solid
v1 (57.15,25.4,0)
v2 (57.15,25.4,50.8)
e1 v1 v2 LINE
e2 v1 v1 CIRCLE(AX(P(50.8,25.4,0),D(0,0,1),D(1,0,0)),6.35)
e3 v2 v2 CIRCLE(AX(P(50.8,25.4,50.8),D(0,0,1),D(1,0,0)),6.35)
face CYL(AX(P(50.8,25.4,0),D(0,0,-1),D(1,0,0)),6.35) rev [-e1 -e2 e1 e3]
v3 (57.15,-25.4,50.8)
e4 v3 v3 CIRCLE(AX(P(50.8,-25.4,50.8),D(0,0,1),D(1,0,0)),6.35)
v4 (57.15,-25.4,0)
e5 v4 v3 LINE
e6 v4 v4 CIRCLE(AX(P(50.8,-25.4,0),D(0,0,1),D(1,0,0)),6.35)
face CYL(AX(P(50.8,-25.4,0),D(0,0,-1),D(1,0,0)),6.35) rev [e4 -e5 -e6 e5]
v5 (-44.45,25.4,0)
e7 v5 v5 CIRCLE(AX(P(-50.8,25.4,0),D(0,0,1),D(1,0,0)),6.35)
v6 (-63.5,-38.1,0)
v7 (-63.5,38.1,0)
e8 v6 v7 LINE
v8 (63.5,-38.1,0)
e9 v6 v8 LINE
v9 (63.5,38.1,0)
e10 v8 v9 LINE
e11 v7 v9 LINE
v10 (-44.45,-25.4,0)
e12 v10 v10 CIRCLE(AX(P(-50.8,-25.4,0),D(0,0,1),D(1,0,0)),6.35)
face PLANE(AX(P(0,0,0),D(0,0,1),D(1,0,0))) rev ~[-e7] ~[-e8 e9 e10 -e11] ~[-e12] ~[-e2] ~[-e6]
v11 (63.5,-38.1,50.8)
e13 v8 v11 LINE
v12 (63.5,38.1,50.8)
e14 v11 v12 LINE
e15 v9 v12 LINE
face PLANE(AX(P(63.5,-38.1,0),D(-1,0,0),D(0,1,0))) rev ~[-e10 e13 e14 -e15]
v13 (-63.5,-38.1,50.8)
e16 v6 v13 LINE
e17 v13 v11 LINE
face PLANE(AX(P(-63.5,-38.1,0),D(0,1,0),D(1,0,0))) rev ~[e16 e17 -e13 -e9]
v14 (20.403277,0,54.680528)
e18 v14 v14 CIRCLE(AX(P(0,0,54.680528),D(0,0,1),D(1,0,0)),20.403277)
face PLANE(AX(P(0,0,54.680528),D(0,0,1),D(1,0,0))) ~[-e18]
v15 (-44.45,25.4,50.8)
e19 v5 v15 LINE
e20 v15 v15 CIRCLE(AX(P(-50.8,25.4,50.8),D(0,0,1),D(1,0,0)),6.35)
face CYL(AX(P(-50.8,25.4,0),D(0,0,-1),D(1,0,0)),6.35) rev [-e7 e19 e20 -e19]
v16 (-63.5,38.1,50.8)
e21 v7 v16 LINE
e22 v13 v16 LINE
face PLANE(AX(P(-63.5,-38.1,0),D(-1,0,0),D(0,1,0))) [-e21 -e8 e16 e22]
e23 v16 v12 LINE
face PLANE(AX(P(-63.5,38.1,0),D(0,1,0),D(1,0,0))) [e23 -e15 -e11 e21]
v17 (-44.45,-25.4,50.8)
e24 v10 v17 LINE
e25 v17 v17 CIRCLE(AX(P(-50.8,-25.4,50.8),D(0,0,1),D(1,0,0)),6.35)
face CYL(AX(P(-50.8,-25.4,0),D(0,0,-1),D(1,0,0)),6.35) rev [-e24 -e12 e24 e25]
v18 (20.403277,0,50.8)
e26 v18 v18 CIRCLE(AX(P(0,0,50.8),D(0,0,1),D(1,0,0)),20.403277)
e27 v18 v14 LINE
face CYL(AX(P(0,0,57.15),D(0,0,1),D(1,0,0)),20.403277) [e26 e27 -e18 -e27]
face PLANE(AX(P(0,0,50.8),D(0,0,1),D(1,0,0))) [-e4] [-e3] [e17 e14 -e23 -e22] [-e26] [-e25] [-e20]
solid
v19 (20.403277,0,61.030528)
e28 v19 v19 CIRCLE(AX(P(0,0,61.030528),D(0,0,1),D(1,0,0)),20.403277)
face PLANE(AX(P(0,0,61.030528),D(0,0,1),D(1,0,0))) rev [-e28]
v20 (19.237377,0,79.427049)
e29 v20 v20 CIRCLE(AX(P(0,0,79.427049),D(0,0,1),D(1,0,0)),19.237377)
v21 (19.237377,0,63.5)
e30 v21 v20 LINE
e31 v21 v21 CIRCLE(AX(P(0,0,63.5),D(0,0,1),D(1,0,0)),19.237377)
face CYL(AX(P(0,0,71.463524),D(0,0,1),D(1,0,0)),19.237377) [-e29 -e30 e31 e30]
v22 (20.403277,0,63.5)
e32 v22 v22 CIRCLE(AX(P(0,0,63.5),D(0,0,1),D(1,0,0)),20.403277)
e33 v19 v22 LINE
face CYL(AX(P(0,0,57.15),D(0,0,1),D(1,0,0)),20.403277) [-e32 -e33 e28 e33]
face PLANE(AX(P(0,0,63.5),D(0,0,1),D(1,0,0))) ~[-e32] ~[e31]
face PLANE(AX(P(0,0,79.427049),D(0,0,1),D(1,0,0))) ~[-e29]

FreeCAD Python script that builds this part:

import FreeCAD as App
import Part
import Sketcher
Q = App.Units.Quantity

doc = App.newDocument("Part")
body = doc.addObject("PartDesign::Body", "Body")
body.AllowCompound = True

# Sketch on XY plane
sketch1 = body.newObject("Sketcher::SketchObject", "Sketch")
sketch1.AttachmentSupport = (doc.getObject("XY_Plane"), [""])
sketch1.MapMode = "FlatFace"
sketch1.addGeometry([
    Part.LineSegment(App.Vector(-63.5, 38.1, 0), App.Vector(-63.5, -38.1, 0)),  # 0
    Part.LineSegment(App.Vector(-63.5, -38.1, 0), App.Vector(63.5, -38.1, 0)),  # 1
    Part.LineSegment(App.Vector(63.5, -38.1, 0), App.Vector(63.5, 38.1, 0)),  # 2
    Part.LineSegment(App.Vector(63.5, 38.1, 0), App.Vector(-63.5, 38.1, 0)),  # 3
    Part.Circle(App.Vector(-50.8, -25.4, 0), App.Vector(0, 0, 1), 6.35),  # 4
    Part.Circle(App.Vector(50.8, -25.4, 0), App.Vector(0, 0, 1), 6.35),  # 5
    Part.Circle(App.Vector(-50.8, 25.4, 0), App.Vector(0, 0, 1), 6.35),  # 6
    Part.Circle(App.Vector(50.8, 25.4, 0), App.Vector(0, 0, 1), 6.35),  # 7
], False)
sketch1.addConstraint([
    Sketcher.Constraint("Coincident", 0, 2, 1, 1),
    Sketcher.Constraint("Coincident", 1, 2, 2, 1),
    Sketcher.Constraint("Coincident", 2, 2, 3, 1),
    Sketcher.Constraint("Coincident", 3, 2, 0, 1),
    Sketcher.Constraint("Vertical", 0),
    Sketcher.Constraint("Horizontal", 1),
    Sketcher.Constraint("Vertical", 2),
    Sketcher.Constraint("Horizontal", 3),
    Sketcher.Constraint("Equal", 4, 5),
    Sketcher.Constraint("Equal", 5, 6),
    Sketcher.Constraint("Equal", 6, 7),
    Sketcher.Constraint("Symmetric", 5, 3, 6, 3, -1, 1),
    Sketcher.Constraint("Symmetric", 4, 3, 7, 3, -1, 1),
    Sketcher.Constraint("Symmetric", 0, 2, 2, 2, -1, 1),
    Sketcher.Constraint("Symmetric", 4, 3, 5, 3, -2),
    Sketcher.Constraint("Diameter", 4, Q("0.5 in")),
    Sketcher.Constraint("DistanceX", 1, 1, 1, 2, Q("5 in")),
    Sketcher.Constraint("DistanceY", 0, 2, 0, 1, Q("3 in")),
    Sketcher.Constraint("DistanceX", 4, 3, -1, 1, Q("2 in")),
    Sketcher.Constraint("DistanceY", 4, 3, -1, 1, Q("1 in")),
])
pad1 = body.newObject("PartDesign::Pad", "Pad")
pad1.Profile = sketch1
pad1.Length = Q("2 in")

# Sketch on XZ plane
sketch2 = body.newObject("Sketcher::SketchObject", "Sketch001")
sketch2.AttachmentSupport = (doc.getObject("XZ_Plane"), [""])
sketch2.MapMode = "FlatFace"
sketch2.addGeometry([
    Part.LineSegment(App.Vector(0, 63.5, 0), App.Vector(0, 50.8, 0)),
    Part.LineSegment(App.Vector(0, 50.8, 0), App.Vector(20.403277, 50.8, 0)),
    Part.LineSegment(App.Vector(20.403277, 50.8, 0), App.Vector(20.403277, 63.5, 0)),
    Part.LineSegment(App.Vector(20.403277, 63.5, 0), App.Vector(0, 63.5, 0)),
], False)
sketch2.addConstraint([
    Sketcher.Constraint("Coincident", 0, 2, 1, 1),
    Sketcher.Constraint("Coincident", 1, 2, 2, 1),
    Sketcher.Constraint("Coincident", 2, 2, 3, 1),
    Sketcher.Constraint("Coincident", 3, 2, 0, 1),
    Sketcher.Constraint("Vertical", 0),
    Sketcher.Constraint("Horizontal", 1),
    Sketcher.Constraint("Vertical", 2),
    Sketcher.Constraint("Horizontal", 3),
    Sketcher.Constraint("PointOnObject", 0, 2, -2),
    Sketcher.Constraint("DistanceY", 0, 2, 0, 1, Q("0.5 in")),
    Sketcher.Constraint("DistanceY", -1, 1, 0, 2, Q("2 in")),
    Sketcher.Constraint("DistanceX", 1, 1, 1, 2, Q("20.403277 mm")),
])
revolution = body.newObject("PartDesign::Revolution", "Revolution")
revolution.Profile = sketch2
revolution.ReferenceAxis = (sketch2, ["V_Axis"])
revolution.Angle = 360

# Sketch on XZ plane
sketch3 = body.newObject("Sketcher::SketchObject", "Sketch002")
sketch3.AttachmentSupport = (doc.getObject("XZ_Plane"), [""])
sketch3.MapMode = "FlatFace"
sketch3.addGeometry([
    Part.LineSegment(App.Vector(0, 79.427049, 0), App.Vector(0, 63.5, 0)),
    Part.LineSegment(App.Vector(0, 63.5, 0), App.Vector(19.237377, 63.5, 0)),
    Part.LineSegment(App.Vector(19.237377, 63.5, 0), App.Vector(19.237377, 79.427049, 0)),
    Part.LineSegment(App.Vector(19.237377, 79.427049, 0), App.Vector(0, 79.427049, 0)),
], False)
sketch3.addConstraint([
    Sketcher.Constraint("Coincident", 0, 2, 1, 1),
    Sketcher.Constraint("Coincident", 1, 2, 2, 1),
    Sketcher.Constraint("Coincident", 2, 2, 3, 1),
    Sketcher.Constraint("Coincident", 3, 2, 0, 1),
    Sketcher.Constraint("Vertical", 0),
    Sketcher.Constraint("Horizontal", 1),
    Sketcher.Constraint("Vertical", 2),
    Sketcher.Constraint("Horizontal", 3),
    Sketcher.Constraint("PointOnObject", 0, 2, -2),
    Sketcher.Constraint("DistanceY", -1, 1, 0, 2, Q("2.5 in")),
    Sketcher.Constraint("DistanceY", 0, 2, 0, 1, Q("15.927049 mm")),
    Sketcher.Constraint("DistanceX", 1, 1, 1, 2, Q("19.237377 mm")),
])
revolution2 = body.newObject("PartDesign::Revolution", "Revolution001")
revolution2.Profile = sketch3
revolution2.ReferenceAxis = (sketch3, ["V_Axis"])
revolution2.Angle = 360

# Sketch on XZ plane
sketch4 = body.newObject("Sketcher::SketchObject", "Sketch003")
sketch4.AttachmentSupport = (doc.getObject("XZ_Plane"), [""])
sketch4.MapMode = "FlatFace"
sketch4.addGeometry([
    Part.LineSegment(App.Vector(0, 61.030528, 0), App.Vector(0, 54.680528, 0)),
    Part.LineSegment(App.Vector(0, 54.680528, 0), App.Vector(38.1, 54.680528, 0)),
    Part.LineSegment(App.Vector(38.1, 54.680528, 0), App.Vector(38.1, 61.030528, 0)),
    Part.LineSegment(App.Vector(38.1, 61.030528, 0), App.Vector(0, 61.030528, 0)),
], False)
sketch4.addConstraint([
    Sketcher.Constraint("Coincident", 0, 2, 1, 1),
    Sketcher.Constraint("Coincident", 1, 2, 2, 1),
    Sketcher.Constraint("Coincident", 2, 2, 3, 1),
    Sketcher.Constraint("Coincident", 3, 2, 0, 1),
    Sketcher.Constraint("Vertical", 0),
    Sketcher.Constraint("Horizontal", 1),
    Sketcher.Constraint("Vertical", 2),
    Sketcher.Constraint("Horizontal", 3),
    Sketcher.Constraint("PointOnObject", 0, 2, -2),
    Sketcher.Constraint("DistanceX", 1, 1, 1, 2, Q("1.5 in")),
    Sketcher.Constraint("DistanceY", 0, 2, 0, 1, Q("0.25 in")),
    Sketcher.Constraint("DistanceY", -1, 1, 0, 2, Q("54.680528 mm")),
])
groove = body.newObject("PartDesign::Groove", "Groove")
groove.Profile = sketch4
groove.ReferenceAxis = (sketch4, ["V_Axis"])
groove.Angle = 360

doc.recompute()
